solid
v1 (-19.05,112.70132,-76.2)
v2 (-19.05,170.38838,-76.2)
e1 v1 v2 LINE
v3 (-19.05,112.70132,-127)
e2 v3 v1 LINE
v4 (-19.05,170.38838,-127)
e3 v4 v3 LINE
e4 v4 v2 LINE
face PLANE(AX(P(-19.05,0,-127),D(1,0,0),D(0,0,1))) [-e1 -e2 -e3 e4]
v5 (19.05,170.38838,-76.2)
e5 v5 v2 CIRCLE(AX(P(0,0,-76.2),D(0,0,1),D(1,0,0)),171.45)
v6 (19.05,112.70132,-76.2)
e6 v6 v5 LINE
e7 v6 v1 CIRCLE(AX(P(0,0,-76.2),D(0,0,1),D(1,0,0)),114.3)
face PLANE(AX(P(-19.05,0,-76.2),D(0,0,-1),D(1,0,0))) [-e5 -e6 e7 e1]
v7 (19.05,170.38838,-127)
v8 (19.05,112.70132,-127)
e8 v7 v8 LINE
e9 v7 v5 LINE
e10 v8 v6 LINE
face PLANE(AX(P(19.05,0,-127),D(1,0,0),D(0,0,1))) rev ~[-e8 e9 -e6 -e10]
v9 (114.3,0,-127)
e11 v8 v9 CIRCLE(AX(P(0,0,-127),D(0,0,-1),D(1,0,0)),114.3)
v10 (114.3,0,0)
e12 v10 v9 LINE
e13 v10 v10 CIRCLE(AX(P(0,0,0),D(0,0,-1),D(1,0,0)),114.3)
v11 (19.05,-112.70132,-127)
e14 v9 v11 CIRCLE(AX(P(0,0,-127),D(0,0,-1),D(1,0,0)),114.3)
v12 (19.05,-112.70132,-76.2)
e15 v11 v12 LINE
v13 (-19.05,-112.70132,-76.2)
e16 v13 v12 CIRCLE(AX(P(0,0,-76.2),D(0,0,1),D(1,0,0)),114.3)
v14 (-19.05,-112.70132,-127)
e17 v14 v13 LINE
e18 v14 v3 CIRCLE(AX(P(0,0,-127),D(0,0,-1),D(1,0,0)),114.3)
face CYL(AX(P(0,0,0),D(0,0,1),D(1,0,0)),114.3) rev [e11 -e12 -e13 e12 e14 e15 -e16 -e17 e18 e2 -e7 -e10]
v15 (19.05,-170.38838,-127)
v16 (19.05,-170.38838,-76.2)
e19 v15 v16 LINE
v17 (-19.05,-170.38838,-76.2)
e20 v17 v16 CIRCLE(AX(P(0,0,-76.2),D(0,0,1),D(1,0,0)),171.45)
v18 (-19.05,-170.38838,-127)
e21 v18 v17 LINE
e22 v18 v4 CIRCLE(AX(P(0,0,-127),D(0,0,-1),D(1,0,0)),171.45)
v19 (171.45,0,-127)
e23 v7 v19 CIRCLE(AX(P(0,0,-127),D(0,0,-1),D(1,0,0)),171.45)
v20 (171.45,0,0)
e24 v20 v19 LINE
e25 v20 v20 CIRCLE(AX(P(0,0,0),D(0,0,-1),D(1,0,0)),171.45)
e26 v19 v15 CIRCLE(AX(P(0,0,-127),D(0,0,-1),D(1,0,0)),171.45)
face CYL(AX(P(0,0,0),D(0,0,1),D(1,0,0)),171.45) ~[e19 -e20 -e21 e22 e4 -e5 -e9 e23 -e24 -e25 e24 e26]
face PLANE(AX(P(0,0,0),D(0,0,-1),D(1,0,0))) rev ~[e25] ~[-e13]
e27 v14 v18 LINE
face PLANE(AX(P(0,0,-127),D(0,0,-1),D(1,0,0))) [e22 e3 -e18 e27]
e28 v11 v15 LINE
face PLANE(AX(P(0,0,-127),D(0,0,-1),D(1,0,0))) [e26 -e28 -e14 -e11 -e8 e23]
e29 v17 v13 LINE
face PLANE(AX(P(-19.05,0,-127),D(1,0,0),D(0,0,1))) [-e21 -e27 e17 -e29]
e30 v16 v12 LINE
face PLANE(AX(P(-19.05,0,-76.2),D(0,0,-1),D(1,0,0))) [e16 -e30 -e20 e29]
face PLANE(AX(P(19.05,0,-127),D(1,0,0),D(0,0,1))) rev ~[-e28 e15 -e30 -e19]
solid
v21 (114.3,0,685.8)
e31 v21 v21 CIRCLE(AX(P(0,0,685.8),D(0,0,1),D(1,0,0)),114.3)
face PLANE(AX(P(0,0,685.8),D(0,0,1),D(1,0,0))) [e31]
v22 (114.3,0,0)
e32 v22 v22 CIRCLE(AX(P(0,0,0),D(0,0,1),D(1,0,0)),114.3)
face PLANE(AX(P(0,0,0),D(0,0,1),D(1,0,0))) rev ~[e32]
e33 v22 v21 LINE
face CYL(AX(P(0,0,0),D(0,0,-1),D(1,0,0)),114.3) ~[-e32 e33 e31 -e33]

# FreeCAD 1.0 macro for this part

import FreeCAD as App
import Part
import Sketcher

V = App.Vector
Q = App.Units.Quantity

doc = App.newDocument("Part")
params = doc.addObject("Spreadsheet::Sheet", "Params")
for row, (alias, value) in enumerate([
    ("sketch1_diameter", "9 in"),
    ("pad1_length", "27 in"),
    ("sketch2_diameter", "9 in"),
    ("sketch2_diameter2", "13.5 in"),
    ("pad2_length", "5 in"),
    ("sketch3_height", "2 in"),
    ("sketch3_width", "1.5 in"),
    ("pocket1_length", "17.8 in"),
], start=1):
    params.set(f"A{row}", alias)
    params.set(f"B{row}", "=" + value)
    params.setAlias(f"B{row}", alias)

body = doc.addObject("PartDesign::Body", "Body")

sketch1 = body.newObject("Sketcher::SketchObject", "Sketch")
sketch1.AttachmentSupport = (doc.getObject("XY_Plane"), [""])
sketch1.MapMode = "FlatFace"
sketch1.addGeometry(Part.Circle(V(0, 0, 0), V(0, 0, 1), 114.3), False)
sketch1.addConstraint([
    Sketcher.Constraint("Coincident", 0, 3, -1, 1),
    Sketcher.Constraint("Diameter", 0, Q("9 in")),
])
sketch1.setExpression("Constraints[1]", "Params.sketch1_diameter")
pad1 = body.newObject("PartDesign::Pad", "Pad")
pad1.Profile = sketch1
pad1.setExpression("Length", "Params.pad1_length")
body2 = doc.addObject("PartDesign::Body", "Body001")

sketch2 = body2.newObject("Sketcher::SketchObject", "Sketch001")
sketch2.AttachmentSupport = (doc.getObject("XY_Plane001"), [""])
sketch2.MapMode = "FlatFace"
sketch2.addGeometry([
    Part.Circle(V(0, 0, 0), V(0, 0, 1), 171.45),
    Part.Circle(V(0, 0, 0), V(0, 0, 1), 114.3),
], False)
sketch2.addConstraint([
    Sketcher.Constraint("Coincident", 0, 3, -1, 1),
    Sketcher.Constraint("Coincident", 1, 3, -1, 1),
    Sketcher.Constraint("Diameter", 1, Q("9 in")),
    Sketcher.Constraint("Diameter", 0, Q("13.5 in")),
])
sketch2.setExpression("Constraints[2]", "Params.sketch2_diameter")
sketch2.setExpression("Constraints[3]", "Params.sketch2_diameter2")
pad2 = body2.newObject("PartDesign::Pad", "Pad001")
pad2.Profile = sketch2
pad2.setExpression("Length", "Params.pad2_length")
pad2.Reversed = True

sketch3 = body2.newObject("Sketcher::SketchObject", "Sketch002")
sketch3.AttachmentSupport = (doc.getObject("XZ_Plane001"), [""])
sketch3.MapMode = "FlatFace"
sketch3.addGeometry([
    Part.LineSegment(V(-19.05, -76.2, 0), V(-19.05, -127, 0)),
    Part.LineSegment(V(-19.05, -127, 0), V(19.05, -127, 0)),
    Part.LineSegment(V(19.05, -127, 0), V(19.05, -76.2, 0)),
    Part.LineSegment(V(19.05, -76.2, 0), V(-19.05, -76.2, 0)),
], False)
sketch3.addConstraint([
    Sketcher.Constraint("Coincident", 0, 2, 1, 1),
    Sketcher.Constraint("Coincident", 1, 2, 2, 1),
    Sketcher.Constraint("Coincident", 2, 2, 3, 1),
    Sketcher.Constraint("Coincident", 3, 2, 0, 1),
    Sketcher.Constraint("Vertical", 0),
    Sketcher.Constraint("Horizontal", 1),
    Sketcher.Constraint("Vertical", 2),
    Sketcher.Constraint("Horizontal", 3),
    Sketcher.Constraint("DistanceY", 0, 2, 0, 1, Q("2 in")),
    Sketcher.Constraint("DistanceX", 1, 1, 1, 2, Q("1.5 in")),
    Sketcher.Constraint("DistanceY", 0, 2, -1, 1, Q("5 in")),
    Sketcher.Constraint("DistanceX", 0, 2, -1, 1, Q("0.75 in")),
])
sketch3.setExpression("Constraints[8]", "Params.sketch3_height")
sketch3.setExpression("Constraints[9]", "Params.sketch3_width")
pocket1 = body2.newObject("PartDesign::Pocket", "Pocket")
pocket1.Profile = sketch3
pocket1.setExpression("Length", "Params.pocket1_length")
pocket1.Midplane = True

doc.recompute()
